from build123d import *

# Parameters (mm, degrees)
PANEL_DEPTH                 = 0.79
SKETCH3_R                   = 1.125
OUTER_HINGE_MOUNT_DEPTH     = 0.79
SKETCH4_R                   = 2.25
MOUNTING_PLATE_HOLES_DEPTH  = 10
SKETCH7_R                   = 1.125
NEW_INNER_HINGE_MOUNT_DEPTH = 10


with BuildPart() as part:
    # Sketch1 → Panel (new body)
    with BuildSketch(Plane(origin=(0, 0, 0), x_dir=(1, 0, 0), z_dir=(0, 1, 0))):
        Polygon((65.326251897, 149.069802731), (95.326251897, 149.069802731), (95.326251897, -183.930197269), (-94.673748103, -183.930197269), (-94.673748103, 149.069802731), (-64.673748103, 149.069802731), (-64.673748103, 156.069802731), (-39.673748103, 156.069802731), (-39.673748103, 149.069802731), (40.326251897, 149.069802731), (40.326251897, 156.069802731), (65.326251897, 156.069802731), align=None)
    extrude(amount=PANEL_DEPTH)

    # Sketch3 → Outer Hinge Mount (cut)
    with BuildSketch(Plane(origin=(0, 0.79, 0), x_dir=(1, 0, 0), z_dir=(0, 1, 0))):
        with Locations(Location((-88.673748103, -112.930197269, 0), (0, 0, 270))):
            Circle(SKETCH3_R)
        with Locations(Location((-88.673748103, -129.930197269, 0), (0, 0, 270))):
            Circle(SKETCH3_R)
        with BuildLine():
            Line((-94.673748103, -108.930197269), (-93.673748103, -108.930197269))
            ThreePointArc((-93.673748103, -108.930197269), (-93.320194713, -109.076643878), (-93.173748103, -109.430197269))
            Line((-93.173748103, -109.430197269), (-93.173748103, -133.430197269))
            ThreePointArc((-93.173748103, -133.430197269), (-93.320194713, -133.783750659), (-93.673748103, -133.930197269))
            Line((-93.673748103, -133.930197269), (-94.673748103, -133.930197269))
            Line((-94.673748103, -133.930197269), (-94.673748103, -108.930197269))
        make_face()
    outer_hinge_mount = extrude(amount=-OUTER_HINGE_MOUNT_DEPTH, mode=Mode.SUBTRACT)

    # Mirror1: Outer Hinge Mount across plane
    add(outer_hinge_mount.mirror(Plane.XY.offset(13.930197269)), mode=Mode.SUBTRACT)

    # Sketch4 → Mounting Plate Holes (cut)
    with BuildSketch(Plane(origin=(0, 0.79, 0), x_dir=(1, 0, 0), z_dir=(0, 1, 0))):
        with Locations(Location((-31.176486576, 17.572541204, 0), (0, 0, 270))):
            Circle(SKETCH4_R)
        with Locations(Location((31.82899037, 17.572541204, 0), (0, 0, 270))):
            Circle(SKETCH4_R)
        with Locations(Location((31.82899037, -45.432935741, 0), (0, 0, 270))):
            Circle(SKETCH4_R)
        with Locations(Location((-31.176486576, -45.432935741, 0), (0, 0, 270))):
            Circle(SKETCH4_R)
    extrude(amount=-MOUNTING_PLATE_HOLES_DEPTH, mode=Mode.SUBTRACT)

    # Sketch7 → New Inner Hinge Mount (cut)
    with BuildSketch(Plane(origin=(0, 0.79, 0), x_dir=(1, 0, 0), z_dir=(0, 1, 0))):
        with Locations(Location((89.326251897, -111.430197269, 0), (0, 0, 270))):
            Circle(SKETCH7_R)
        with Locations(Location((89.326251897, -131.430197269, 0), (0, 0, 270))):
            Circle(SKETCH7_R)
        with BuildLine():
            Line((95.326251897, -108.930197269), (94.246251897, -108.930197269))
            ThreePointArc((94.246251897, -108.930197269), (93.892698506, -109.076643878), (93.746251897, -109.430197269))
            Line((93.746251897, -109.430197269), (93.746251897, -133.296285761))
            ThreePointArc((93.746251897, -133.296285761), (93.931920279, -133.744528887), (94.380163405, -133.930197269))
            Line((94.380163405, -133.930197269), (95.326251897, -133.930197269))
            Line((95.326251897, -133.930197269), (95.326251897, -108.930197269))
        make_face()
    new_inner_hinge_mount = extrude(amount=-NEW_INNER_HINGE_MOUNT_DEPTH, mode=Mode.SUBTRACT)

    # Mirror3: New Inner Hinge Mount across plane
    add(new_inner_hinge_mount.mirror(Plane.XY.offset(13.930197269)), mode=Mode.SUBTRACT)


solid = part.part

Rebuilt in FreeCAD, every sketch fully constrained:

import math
import FreeCAD as App
import Part
import Sketcher
Q = App.Units.Quantity

doc = App.newDocument("Part")
body = doc.addObject("PartDesign::Body", "Body")

# Sketch on XZ plane
sketch1 = doc.addObject("Sketcher::SketchObject", "Sketch")
body.addObject(sketch1)
sketch1.AttachmentSupport = (doc.XZ_Plane, [""])
sketch1.MapMode = "FlatFace"
sketch1.addGeometry(Part.LineSegment(App.Vector(95, -149, 0), App.Vector(65, -149, 0)), False)
sketch1.addGeometry(Part.LineSegment(App.Vector(65, -149, 0), App.Vector(65, -156, 0)), False)
sketch1.addGeometry(Part.LineSegment(App.Vector(65, -156, 0), App.Vector(40, -156, 0)), False)
sketch1.addGeometry(Part.LineSegment(App.Vector(40, -156, 0), App.Vector(40, -149, 0)), False)
sketch1.addGeometry(Part.LineSegment(App.Vector(40, -149, 0), App.Vector(-40, -149, 0)), False)
sketch1.addGeometry(Part.LineSegment(App.Vector(-40, -149, 0), App.Vector(-40, -156, 0)), False)
sketch1.addGeometry(Part.LineSegment(App.Vector(-40, -156, 0), App.Vector(-65, -156, 0)), False)
sketch1.addGeometry(Part.LineSegment(App.Vector(-65, -156, 0), App.Vector(-65, -149, 0)), False)
sketch1.addGeometry(Part.LineSegment(App.Vector(-65, -149, 0), App.Vector(-95, -149, 0)), False)
sketch1.addGeometry(Part.LineSegment(App.Vector(-95, -149, 0), App.Vector(-95, 184, 0)), False)
sketch1.addGeometry(Part.LineSegment(App.Vector(-95, 184, 0), App.Vector(95, 184, 0)), False)
sketch1.addGeometry(Part.LineSegment(App.Vector(95, 184, 0), App.Vector(95, -149, 0)), False)
sketch1.addConstraint(Sketcher.Constraint("Coincident", 0, 2, 1, 1))
sketch1.addConstraint(Sketcher.Constraint("Coincident", 1, 2, 2, 1))
sketch1.addConstraint(Sketcher.Constraint("Coincident", 2, 2, 3, 1))
sketch1.addConstraint(Sketcher.Constraint("Coincident", 3, 2, 4, 1))
sketch1.addConstraint(Sketcher.Constraint("Coincident", 4, 2, 5, 1))
sketch1.addConstraint(Sketcher.Constraint("Coincident", 5, 2, 6, 1))
sketch1.addConstraint(Sketcher.Constraint("Coincident", 6, 2, 7, 1))
sketch1.addConstraint(Sketcher.Constraint("Coincident", 7, 2, 8, 1))
sketch1.addConstraint(Sketcher.Constraint("Coincident", 8, 2, 9, 1))
sketch1.addConstraint(Sketcher.Constraint("Coincident", 9, 2, 10, 1))
sketch1.addConstraint(Sketcher.Constraint("Coincident", 10, 2, 11, 1))
sketch1.addConstraint(Sketcher.Constraint("Coincident", 11, 2, 0, 1))
sketch1.addConstraint(Sketcher.Constraint("Horizontal", 0))
sketch1.addConstraint(Sketcher.Constraint("Vertical", 1))
sketch1.addConstraint(Sketcher.Constraint("Horizontal", 2))
sketch1.addConstraint(Sketcher.Constraint("Vertical", 3))
sketch1.addConstraint(Sketcher.Constraint("Horizontal", 4))
sketch1.addConstraint(Sketcher.Constraint("Vertical", 5))
sketch1.addConstraint(Sketcher.Constraint("Horizontal", 6))
sketch1.addConstraint(Sketcher.Constraint("Vertical", 7))
sketch1.addConstraint(Sketcher.Constraint("Horizontal", 8))
sketch1.addConstraint(Sketcher.Constraint("Vertical", 9))
sketch1.addConstraint(Sketcher.Constraint("Horizontal", 10))
sketch1.addConstraint(Sketcher.Constraint("Vertical", 11))
sketch1.addConstraint(Sketcher.Constraint("Horizontal", 0, 2, 3, 2))
sketch1.addConstraint(Sketcher.Constraint("Horizontal", 2, 2, 5, 2))
sketch1.addConstraint(Sketcher.Constraint("Horizontal", 4, 2, 7, 2))
sketch1.addConstraint(Sketcher.Constraint("Equal", 2, 6))
sketch1.addConstraint(Sketcher.Constraint("Equal", 0, 8))
sketch1.addConstraint(Sketcher.Constraint("DistanceX", 0, 2, 0, 1, Q("30 mm")))
sketch1.addConstraint(Sketcher.Constraint("DistanceX", 2, 2, 2, 1, Q("25 mm")))
sketch1.addConstraint(Sketcher.Constraint("DistanceX", 4, 2, 4, 1, Q("80 mm")))
sketch1.addConstraint(Sketcher.Constraint("DistanceY", 1, 2, 1, 1, Q("7 mm")))
sketch1.addConstraint(Sketcher.Constraint("DistanceY", 9, 1, 9, 2, Q("333 mm")))
sketch1.addConstraint(Sketcher.Constraint("DistanceX", -1, 1, 0, 2, Q("65.326252 mm")))
sketch1.addConstraint(Sketcher.Constraint("DistanceY", 0, 2, -1, 1, Q("149.069803 mm")))
pad1 = doc.addObject("PartDesign::Pad", "Pad")
body.addObject(pad1)
pad1.Profile = sketch1
pad1.Length = 0.79
pad1.Reversed = True

# Sketch on XZ plane
sketch2 = doc.addObject("Sketcher::SketchObject", "Sketch001")
body.addObject(sketch2)
sketch2.AttachmentSupport = (doc.XZ_Plane, [""])
sketch2.MapMode = "FlatFace"
sketch2.AttachmentOffset = App.Placement(App.Vector(0, 0, -0.79), App.Rotation())
sketch2.addGeometry(Part.Circle(App.Vector(-88.7, 112.9, 0), App.Vector(0, 0, 1), 1.1), False)
sketch2.addGeometry(Part.Circle(App.Vector(-88.7, 129.9, 0), App.Vector(0, 0, 1), 1.1), False)
sketch2.addGeometry(Part.LineSegment(App.Vector(-93.7, 108.9, 0), App.Vector(-94.7, 108.9, 0)), False)
sketch2.addGeometry(Part.LineSegment(App.Vector(-94.7, 108.9, 0), App.Vector(-94.7, 133.9, 0)), False)
sketch2.addGeometry(Part.LineSegment(App.Vector(-94.7, 133.9, 0), App.Vector(-93.7, 133.9, 0)), False)
sketch2.addGeometry(Part.ArcOfCircle(Part.Circle(App.Vector(-93.7, 133.4, 0), App.Vector(0, 0, 1), 0.5), math.radians(0), math.radians(90)), False)
sketch2.addGeometry(Part.LineSegment(App.Vector(-93.2, 133.4, 0), App.Vector(-93.2, 109.4, 0)), False)
sketch2.addGeometry(Part.ArcOfCircle(Part.Circle(App.Vector(-93.7, 109.4, 0), App.Vector(0, 0, 1), 0.5), math.radians(-90), math.radians(0)), False)
sketch2.addConstraint(Sketcher.Constraint("Coincident", 2, 2, 3, 1))
sketch2.addConstraint(Sketcher.Constraint("Coincident", 3, 2, 4, 1))
sketch2.addConstraint(Sketcher.Constraint("Tangent", 4, 2, 5, 2))
sketch2.addConstraint(Sketcher.Constraint("Tangent", 5, 1, 6, 1))
sketch2.addConstraint(Sketcher.Constraint("Tangent", 6, 2, 7, 2))
sketch2.addConstraint(Sketcher.Constraint("Tangent", 7, 1, 2, 1))
sketch2.addConstraint(Sketcher.Constraint("Horizontal", 2))
sketch2.addConstraint(Sketcher.Constraint("Vertical", 3))
sketch2.addConstraint(Sketcher.Constraint("Horizontal", 4))
sketch2.addConstraint(Sketcher.Constraint("Vertical", 6))
sketch2.addConstraint(Sketcher.Constraint("Equal", 0, 1))
sketch2.addConstraint(Sketcher.Constraint("Equal", 5, 7))
sketch2.addConstraint(Sketcher.Constraint("Vertical", 0, 3, 1, 3))
sketch2.addConstraint(Sketcher.Constraint("Radius", 5, Q("0.5 mm")))
sketch2.addConstraint(Sketcher.Constraint("Diameter", 0, Q("2.25 mm")))
sketch2.addConstraint(Sketcher.Constraint("DistanceX", 2, 2, 2, 1, Q("1 mm")))
sketch2.addConstraint(Sketcher.Constraint("DistanceY", 3, 1, 3, 2, Q("25 mm")))
sketch2.addConstraint(Sketcher.Constraint("DistanceY", 0, 3, 1, 3, Q("17 mm")))
sketch2.addConstraint(Sketcher.Constraint("DistanceX", 5, 3, 1, 3, Q("5 mm")))
sketch2.addConstraint(Sketcher.Constraint("DistanceY", 2, 2, 0, 3, Q("4 mm")))
sketch2.addConstraint(Sketcher.Constraint("DistanceX", 0, 3, -1, 1, Q("88.673748 mm")))
sketch2.addConstraint(Sketcher.Constraint("DistanceY", -1, 1, 0, 3, Q("112.930197 mm")))
pocket1 = doc.addObject("PartDesign::Pocket", "Pocket")
body.addObject(pocket1)
pocket1.Profile = sketch2
pocket1.Length = 0.79
pocket1.Reversed = True
doc.recompute()

datumplane = doc.addObject("PartDesign::Plane", "DatumPlane")
body.addObject(datumplane)
datumplane.AttachmentSupport = (doc.XY_Plane, [""])
datumplane.MapMode = "FlatFace"
datumplane.AttachmentOffset = App.Placement(App.Vector(0, 0, 13.930197), App.Rotation())
mirrored = doc.addObject("PartDesign::Mirrored", "Mirrored")
body.addObject(mirrored)
mirrored.Originals = [pocket1]
mirrored.MirrorPlane = (datumplane, [""])
body.Tip = mirrored

# Sketch on XZ plane
sketch3 = doc.addObject("Sketcher::SketchObject", "Sketch002")
body.addObject(sketch3)
sketch3.AttachmentSupport = (doc.XZ_Plane, [""])
sketch3.MapMode = "FlatFace"
sketch3.AttachmentOffset = App.Placement(App.Vector(0, 0, -0.79), App.Rotation())
sketch3.addGeometry(Part.Circle(App.Vector(-31.2, -17.6, 0), App.Vector(0, 0, 1), 2.2), False)
sketch3.addGeometry(Part.Circle(App.Vector(31.8, -17.6, 0), App.Vector(0, 0, 1), 2.2), False)
sketch3.addGeometry(Part.Circle(App.Vector(31.8, 45.4, 0), App.Vector(0, 0, 1), 2.2), False)
sketch3.addGeometry(Part.Circle(App.Vector(-31.2, 45.4, 0), App.Vector(0, 0, 1), 2.2), False)
sketch3.addConstraint(Sketcher.Constraint("Equal", 0, 1))
sketch3.addConstraint(Sketcher.Constraint("Equal", 1, 2))
sketch3.addConstraint(Sketcher.Constraint("Equal", 2, 3))
sketch3.addConstraint(Sketcher.Constraint("Horizontal", 0, 3, 1, 3))
sketch3.addConstraint(Sketcher.Constraint("Horizontal", 2, 3, 3, 3))
sketch3.addConstraint(Sketcher.Constraint("Vertical", 1, 3, 2, 3))
sketch3.addConstraint(Sketcher.Constraint("Vertical", 0, 3, 3, 3))
sketch3.addConstraint(Sketcher.Constraint("Diameter", 0, Q("4.5 mm")))
sketch3.addConstraint(Sketcher.Constraint("DistanceY", 0, 3, -1, 1, Q("17.572541 mm")))
sketch3.addConstraint(Sketcher.Constraint("DistanceX", -1, 1, 1, 3, Q("31.82899 mm")))
sketch3.addConstraint(Sketcher.Constraint("DistanceX", 0, 3, -1, 1, Q("31.176487 mm")))
sketch3.addConstraint(Sketcher.Constraint("DistanceY", -1, 1, 2, 3, Q("45.432936 mm")))
pocket2 = doc.addObject("PartDesign::Pocket", "Pocket001")
body.addObject(pocket2)
pocket2.Profile = sketch3
pocket2.Length = 10
pocket2.Reversed = True

# Sketch on XZ plane
sketch4 = doc.addObject("Sketcher::SketchObject", "Sketch003")
body.addObject(sketch4)
sketch4.AttachmentSupport = (doc.XZ_Plane, [""])
sketch4.MapMode = "FlatFace"
sketch4.AttachmentOffset = App.Placement(App.Vector(0, 0, -0.79), App.Rotation())
sketch4.addGeometry(Part.Circle(App.Vector(89.33, 111.43, 0), App.Vector(0, 0, 1), 1.12), False)
sketch4.addGeometry(Part.Circle(App.Vector(89.33, 131.43, 0), App.Vector(0, 0, 1), 1.12), False)
sketch4.addGeometry(Part.LineSegment(App.Vector(95.33, 108.93, 0), App.Vector(94.25, 108.93, 0)), False)
sketch4.addGeometry(Part.ArcOfCircle(Part.Circle(App.Vector(94.25, 109.43, 0), App.Vector(0, 0, 1), 0.5), math.radians(180), math.radians(270)), False)
sketch4.addGeometry(Part.LineSegment(App.Vector(93.75, 109.43, 0), App.Vector(93.75, 133.3, 0)), False)
sketch4.addGeometry(Part.ArcOfCircle(Part.Circle(App.Vector(94.38, 133.3, 0), App.Vector(0, 0, 1), 0.63), math.radians(90), math.radians(180)), False)
sketch4.addGeometry(Part.LineSegment(App.Vector(94.38, 133.93, 0), App.Vector(95.33, 133.93, 0)), False)
sketch4.addGeometry(Part.LineSegment(App.Vector(95.33, 133.93, 0), App.Vector(95.33, 108.93, 0)), False)
sketch4.addConstraint(Sketcher.Constraint("Tangent", 2, 2, 3, 2))
sketch4.addConstraint(Sketcher.Constraint("Tangent", 3, 1, 4, 1))
sketch4.addConstraint(Sketcher.Constraint("Tangent", 4, 2, 5, 2))
sketch4.addConstraint(Sketcher.Constraint("Tangent", 5, 1, 6, 1))
sketch4.addConstraint(Sketcher.Constraint("Coincident", 6, 2, 7, 1))
sketch4.addConstraint(Sketcher.Constraint("Coincident", 7, 2, 2, 1))
sketch4.addConstraint(Sketcher.Constraint("Horizontal", 2))
sketch4.addConstraint(Sketcher.Constraint("Vertical", 4))
sketch4.addConstraint(Sketcher.Constraint("Horizontal", 6))
sketch4.addConstraint(Sketcher.Constraint("Vertical", 7))
sketch4.addConstraint(Sketcher.Constraint("Equal", 0, 1))
sketch4.addConstraint(Sketcher.Constraint("Vertical", 0, 3, 1, 3))
sketch4.addConstraint(Sketcher.Constraint("Radius", 3, Q("0.5 mm")))
sketch4.addConstraint(Sketcher.Constraint("Diameter", 0, Q("2.25 mm")))
sketch4.addConstraint(Sketcher.Constraint("DistanceY", 7, 2, 7, 1, Q("25 mm")))
sketch4.addConstraint(Sketcher.Constraint("DistanceY", 0, 3, 1, 3, Q("20 mm")))
sketch4.addConstraint(Sketcher.Constraint("DistanceY", 3, 3, 0, 3, Q("2 mm")))
sketch4.addConstraint(Sketcher.Constraint("DistanceX", 1, 3, 6, 2, Q("6 mm")))
sketch4.addConstraint(Sketcher.Constraint("DistanceX", 2, 2, 2, 1, Q("1.08 mm")))
sketch4.addConstraint(Sketcher.Constraint("Radius", 5, Q("0.633912 mm")))
sketch4.addConstraint(Sketcher.Constraint("DistanceX", -1, 1, 0, 3, Q("89.326252 mm")))
sketch4.addConstraint(Sketcher.Constraint("DistanceY", -1, 1, 0, 3, Q("111.430197 mm")))
pocket3 = doc.addObject("PartDesign::Pocket", "Pocket002")
body.addObject(pocket3)
pocket3.Profile = sketch4
pocket3.Length = 10
pocket3.Reversed = True
doc.recompute()

datumplane2 = doc.addObject("PartDesign::Plane", "DatumPlane001")
body.addObject(datumplane2)
datumplane2.AttachmentSupport = (doc.XY_Plane, [""])
datumplane2.MapMode = "FlatFace"
datumplane2.AttachmentOffset = App.Placement(App.Vector(0, 0, 13.930197), App.Rotation())
mirrored2 = doc.addObject("PartDesign::Mirrored", "Mirrored001")
body.addObject(mirrored2)
mirrored2.Originals = [pocket3]
mirrored2.MirrorPlane = (datumplane2, [""])
body.Tip = mirrored2

doc.recompute()
